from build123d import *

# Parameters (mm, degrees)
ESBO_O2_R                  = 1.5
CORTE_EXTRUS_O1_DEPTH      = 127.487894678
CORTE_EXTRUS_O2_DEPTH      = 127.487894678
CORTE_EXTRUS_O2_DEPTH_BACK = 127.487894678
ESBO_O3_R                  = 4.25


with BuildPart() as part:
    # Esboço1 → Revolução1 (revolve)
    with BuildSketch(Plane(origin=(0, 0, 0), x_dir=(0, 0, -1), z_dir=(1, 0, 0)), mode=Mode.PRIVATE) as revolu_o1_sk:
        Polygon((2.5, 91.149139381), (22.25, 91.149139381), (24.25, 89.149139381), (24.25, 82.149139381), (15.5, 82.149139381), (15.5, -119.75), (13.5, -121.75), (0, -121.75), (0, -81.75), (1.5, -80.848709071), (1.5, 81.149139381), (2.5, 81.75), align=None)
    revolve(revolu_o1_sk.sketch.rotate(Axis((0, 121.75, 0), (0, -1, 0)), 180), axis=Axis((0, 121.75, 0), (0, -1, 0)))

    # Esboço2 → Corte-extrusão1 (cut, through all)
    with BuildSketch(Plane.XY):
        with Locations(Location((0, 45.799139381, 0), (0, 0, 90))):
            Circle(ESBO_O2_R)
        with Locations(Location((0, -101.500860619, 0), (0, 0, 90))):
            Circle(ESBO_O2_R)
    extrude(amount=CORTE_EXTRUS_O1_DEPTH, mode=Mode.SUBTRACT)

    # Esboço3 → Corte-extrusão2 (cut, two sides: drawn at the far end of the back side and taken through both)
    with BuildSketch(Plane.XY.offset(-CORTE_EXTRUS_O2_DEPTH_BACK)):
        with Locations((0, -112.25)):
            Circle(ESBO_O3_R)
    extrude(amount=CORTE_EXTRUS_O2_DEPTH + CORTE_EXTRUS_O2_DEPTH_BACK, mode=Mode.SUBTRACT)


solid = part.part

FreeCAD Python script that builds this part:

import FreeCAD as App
import Part
import Sketcher
from FreeCAD import Vector
Q = App.Units.Quantity


def add_polygon(sketch, points):
    """Adds a closed chain of lines whose ends are joined by coincident constraints."""
    first, n = sketch.GeometryCount, len(points)
    for a, b in zip(points, points[1:] + points[:1]):
        sketch.addGeometry(Part.LineSegment(App.Vector(*a, 0), App.Vector(*b, 0)), False)
    for i in range(n):
        sketch.addConstraint(Sketcher.Constraint("Coincident", first + i, 2, first + (i + 1) % n, 1))

doc = App.newDocument("Part")
body = doc.addObject("PartDesign::Body", "Body")

sketch1 = body.newObject("Sketcher::SketchObject", "Sketch")
sketch1.AttachmentSupport = (doc.getObject("YZ_Plane"), [""])
sketch1.MapMode = "FlatFace"
add_polygon(sketch1, [(91.1, -22.2), (91.1, -2.5), (81.8, -2.5), (81.1, -1.5), (-80.8, -1.5), (-81.8, 0), (-121.8, 0), (-121.8, -13.5), (-119.8, -15.5), (82.1, -15.5), (82.1, -24.2), (89.1, -24.2)])
sketch1.addConstraint([
    Sketcher.Constraint("Vertical", 0),
    Sketcher.Constraint("Horizontal", 1),
    Sketcher.Constraint("Horizontal", 3),
    Sketcher.Constraint("Horizontal", 5),
    Sketcher.Constraint("Vertical", 6),
    Sketcher.Constraint("Horizontal", 8),
    Sketcher.Constraint("Vertical", 9),
    Sketcher.Constraint("Horizontal", 10),
    Sketcher.Constraint("PointOnObject", 4, 2, -1),
    Sketcher.Constraint("Parallel", 2, 4),
    Sketcher.Constraint("Perpendicular", 7, 11),
    Sketcher.Constraint("Equal", 7, 11),
    Sketcher.Constraint("DistanceX", 5, 2, 5, 1, Q("40 mm")),
    Sketcher.Constraint("DistanceX", 10, 1, 10, 2, Q("7 mm")),
    Sketcher.Constraint("Angle", 2, Q("121 deg")),
    Sketcher.Constraint("Angle", 7, Q("-45 deg")),
    Sketcher.Constraint("DistanceY", 6, 2, 6, 1, Q("13.5 mm")),
    Sketcher.Constraint("DistanceY", 1, 2, 2, 2, Q("1 mm")),
    Sketcher.Constraint("DistanceX", 2, 2, 0, 2, Q("10 mm")),
    Sketcher.Constraint("DistanceY", 6, 2, 3, 2, Q("12 mm")),
    Sketcher.Constraint("DistanceX", 6, 2, 7, 2, Q("2 mm")),
    Sketcher.Constraint("DistanceY", 0, 1, 0, 2, Q("19.75 mm")),
    Sketcher.Constraint("DistanceX", 4, 2, 1, 2, Q("163.5 mm")),
    Sketcher.Constraint("DistanceX", -1, 1, 1, 2, Q("81.75 mm")),
])
revolution = body.newObject("PartDesign::Revolution", "Revolution")
revolution.Profile = sketch1
revolution.ReferenceAxis = (sketch1, ["H_Axis"])
revolution.Angle = 360

sketch2 = body.newObject("Sketcher::SketchObject", "Sketch001")
sketch2.AttachmentSupport = (doc.getObject("XY_Plane"), [""])
sketch2.MapMode = "FlatFace"
sketch2.addGeometry([
    Part.Circle(Vector(0, 45.8, 0), Vector(0, 0, 1), 1.5),
    Part.Circle(Vector(0, -101.5, 0), Vector(0, 0, 1), 1.5),
], False)
sketch2.addConstraint([
    Sketcher.Constraint("Equal", 0, 1),
    Sketcher.Constraint("PointOnObject", 0, 3, -2),
    Sketcher.Constraint("PointOnObject", 1, 3, -2),
    Sketcher.Constraint("Diameter", 0, Q("3 mm")),
    Sketcher.Constraint("DistanceY", 1, 3, 0, 3, Q("147.3 mm")),
    Sketcher.Constraint("DistanceY", -1, 1, 0, 3, Q("45.799139 mm")),
])
pocket1 = body.newObject("PartDesign::Pocket", "Pocket")
pocket1.Profile = sketch2
pocket1.Type = "ThroughAll"
pocket1.Reversed = True

sketch3 = body.newObject("Sketcher::SketchObject", "Sketch002")
sketch3.AttachmentSupport = (doc.getObject("XY_Plane"), [""])
sketch3.MapMode = "FlatFace"
sketch3.addGeometry(Part.Circle(Vector(0, -112.2, 0), Vector(0, 0, 1), 4.2), False)
sketch3.addConstraint([
    Sketcher.Constraint("PointOnObject", 0, 3, -2),
    Sketcher.Constraint("Diameter", 0, Q("8.5 mm")),
    Sketcher.Constraint("DistanceY", 0, 3, -1, 1, Q("112.25 mm")),
])
pocket2 = body.newObject("PartDesign::Pocket", "Pocket001")
pocket2.Profile = sketch3
pocket2.Type = "ThroughAll"
pocket2.Midplane = True

doc.recompute()
